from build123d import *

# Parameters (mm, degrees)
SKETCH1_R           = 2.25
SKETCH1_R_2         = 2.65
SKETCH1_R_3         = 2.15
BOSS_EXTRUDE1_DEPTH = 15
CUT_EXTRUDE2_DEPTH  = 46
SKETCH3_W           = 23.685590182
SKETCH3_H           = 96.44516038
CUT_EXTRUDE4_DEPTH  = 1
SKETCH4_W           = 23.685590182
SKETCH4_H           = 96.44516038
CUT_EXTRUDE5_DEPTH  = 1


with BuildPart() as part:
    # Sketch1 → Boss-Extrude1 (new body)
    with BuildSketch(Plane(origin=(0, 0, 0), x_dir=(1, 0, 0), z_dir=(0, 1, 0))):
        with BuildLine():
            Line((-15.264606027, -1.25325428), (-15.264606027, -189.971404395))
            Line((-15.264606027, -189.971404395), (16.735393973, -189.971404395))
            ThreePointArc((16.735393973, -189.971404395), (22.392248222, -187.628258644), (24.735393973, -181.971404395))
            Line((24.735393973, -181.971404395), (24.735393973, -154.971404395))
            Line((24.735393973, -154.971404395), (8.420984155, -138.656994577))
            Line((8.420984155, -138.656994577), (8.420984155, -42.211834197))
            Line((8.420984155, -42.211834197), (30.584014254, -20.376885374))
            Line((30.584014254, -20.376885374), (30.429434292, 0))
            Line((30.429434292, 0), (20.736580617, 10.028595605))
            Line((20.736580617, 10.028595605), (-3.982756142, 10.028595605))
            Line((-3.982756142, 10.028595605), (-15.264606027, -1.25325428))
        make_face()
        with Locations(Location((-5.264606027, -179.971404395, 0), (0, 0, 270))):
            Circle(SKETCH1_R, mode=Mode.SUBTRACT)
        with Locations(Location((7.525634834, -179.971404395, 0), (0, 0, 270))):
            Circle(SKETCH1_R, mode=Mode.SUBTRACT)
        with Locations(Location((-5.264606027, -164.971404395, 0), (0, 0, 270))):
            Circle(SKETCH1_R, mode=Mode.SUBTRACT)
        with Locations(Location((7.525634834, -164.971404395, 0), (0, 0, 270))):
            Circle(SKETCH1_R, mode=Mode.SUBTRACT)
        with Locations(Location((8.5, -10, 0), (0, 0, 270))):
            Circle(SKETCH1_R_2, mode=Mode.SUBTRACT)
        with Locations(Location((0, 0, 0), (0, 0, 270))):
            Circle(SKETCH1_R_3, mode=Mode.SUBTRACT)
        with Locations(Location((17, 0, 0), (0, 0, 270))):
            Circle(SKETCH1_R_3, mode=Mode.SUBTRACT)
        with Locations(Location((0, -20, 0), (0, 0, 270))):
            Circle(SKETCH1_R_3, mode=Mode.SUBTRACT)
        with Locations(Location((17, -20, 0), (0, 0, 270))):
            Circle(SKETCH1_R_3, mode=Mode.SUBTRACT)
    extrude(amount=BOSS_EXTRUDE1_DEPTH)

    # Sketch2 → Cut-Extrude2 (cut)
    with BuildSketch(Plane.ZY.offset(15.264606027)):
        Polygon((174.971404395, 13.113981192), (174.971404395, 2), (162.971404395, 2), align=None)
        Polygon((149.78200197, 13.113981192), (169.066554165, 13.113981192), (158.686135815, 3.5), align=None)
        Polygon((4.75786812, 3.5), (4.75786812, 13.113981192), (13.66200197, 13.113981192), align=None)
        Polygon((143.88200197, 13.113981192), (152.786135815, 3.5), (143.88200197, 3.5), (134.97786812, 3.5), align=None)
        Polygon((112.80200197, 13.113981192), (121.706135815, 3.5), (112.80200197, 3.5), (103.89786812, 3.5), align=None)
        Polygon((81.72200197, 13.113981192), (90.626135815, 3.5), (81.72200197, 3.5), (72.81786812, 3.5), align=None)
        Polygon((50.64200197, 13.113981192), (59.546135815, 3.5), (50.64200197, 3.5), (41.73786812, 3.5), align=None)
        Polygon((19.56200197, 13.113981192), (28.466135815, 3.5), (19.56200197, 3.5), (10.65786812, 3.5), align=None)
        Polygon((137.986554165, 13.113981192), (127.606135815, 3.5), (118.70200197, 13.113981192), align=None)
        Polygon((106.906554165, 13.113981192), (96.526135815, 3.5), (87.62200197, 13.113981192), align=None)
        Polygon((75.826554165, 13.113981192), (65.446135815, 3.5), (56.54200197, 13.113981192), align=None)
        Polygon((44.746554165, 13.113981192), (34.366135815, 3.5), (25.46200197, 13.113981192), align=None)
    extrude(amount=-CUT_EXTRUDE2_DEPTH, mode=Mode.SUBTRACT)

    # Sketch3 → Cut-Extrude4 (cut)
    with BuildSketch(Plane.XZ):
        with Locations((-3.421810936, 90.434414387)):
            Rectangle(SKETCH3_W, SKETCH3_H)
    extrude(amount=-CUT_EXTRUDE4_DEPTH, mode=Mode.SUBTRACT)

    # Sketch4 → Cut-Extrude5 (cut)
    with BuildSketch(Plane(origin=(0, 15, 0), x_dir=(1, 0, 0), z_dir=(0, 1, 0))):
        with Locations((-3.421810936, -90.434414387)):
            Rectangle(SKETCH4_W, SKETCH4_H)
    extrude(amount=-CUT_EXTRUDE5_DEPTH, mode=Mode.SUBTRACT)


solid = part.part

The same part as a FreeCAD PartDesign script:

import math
import FreeCAD as App
import Part
import Sketcher

V = App.Vector
Q = App.Units.Quantity


def add_polygon(sketch, points):
    """Adds a closed chain of lines whose ends are joined by coincident constraints."""
    first, n = sketch.GeometryCount, len(points)
    for a, b in zip(points, points[1:] + points[:1]):
        sketch.addGeometry(Part.LineSegment(App.Vector(*a, 0), App.Vector(*b, 0)), False)
    for i in range(n):
        sketch.addConstraint(Sketcher.Constraint("Coincident", first + i, 2, first + (i + 1) % n, 1))

doc = App.newDocument("Part")
body = doc.addObject("PartDesign::Body", "Body")

# Sketch on XZ plane
sketch1 = body.newObject("Sketcher::SketchObject", "Sketch")
sketch1.AttachmentSupport = (doc.getObject("XZ_Plane"), [""])
sketch1.MapMode = "FlatFace"
sketch1.addGeometry([
    Part.LineSegment(V(-15.264606, 1.253254, 0), V(-15.264606, 189.971404, 0)),  # 0
    Part.LineSegment(V(-15.264606, 189.971404, 0), V(16.735394, 189.971404, 0)),  # 1
    Part.ArcOfCircle(Part.Circle(V(16.735394, 181.971404, 0), V(0, 0, 1), 8), math.radians(0), math.radians(90)),  # 2
    Part.LineSegment(V(24.735394, 181.971404, 0), V(24.735394, 154.971404, 0)),  # 3
    Part.LineSegment(V(24.735394, 154.971404, 0), V(8.420984, 138.656995, 0)),  # 4
    Part.LineSegment(V(8.420984, 138.656995, 0), V(8.420984, 42.211834, 0)),  # 5
    Part.LineSegment(V(8.420984, 42.211834, 0), V(30.584014, 20.376885, 0)),  # 6
    Part.LineSegment(V(30.584014, 20.376885, 0), V(30.429434, 0, 0)),  # 7
    Part.LineSegment(V(30.429434, 0, 0), V(20.736581, -10.028596, 0)),  # 8
    Part.LineSegment(V(20.736581, -10.028596, 0), V(-3.982756, -10.028596, 0)),  # 9
    Part.LineSegment(V(-3.982756, -10.028596, 0), V(-15.264606, 1.253254, 0)),  # 10
    Part.Circle(V(-5.264606, 179.971404, 0), V(0, 0, 1), 2.25),  # 11
    Part.Circle(V(-5.264606, 164.971404, 0), V(0, 0, 1), 2.25),  # 12
    Part.Circle(V(7.525635, 179.971404, 0), V(0, 0, 1), 2.25),  # 13
    Part.Circle(V(7.525635, 164.971404, 0), V(0, 0, 1), 2.25),  # 14
    Part.Circle(V(0, 20, 0), V(0, 0, 1), 2.15),  # 15
    Part.Circle(V(0, 0, 0), V(0, 0, 1), 2.15),  # 16
    Part.Circle(V(8.5, 10, 0), V(0, 0, 1), 2.65),  # 17
    Part.Circle(V(17, 20, 0), V(0, 0, 1), 2.15),  # 18
    Part.Circle(V(17, 0, 0), V(0, 0, 1), 2.15),  # 19
], False)
sketch1.addConstraint([
    Sketcher.Constraint("Coincident", 0, 2, 1, 1),
    Sketcher.Constraint("Coincident", 1, 2, 2, 2),
    Sketcher.Constraint("Coincident", 2, 1, 3, 1),
    Sketcher.Constraint("Coincident", 3, 2, 4, 1),
    Sketcher.Constraint("Coincident", 4, 2, 5, 1),
    Sketcher.Constraint("Coincident", 5, 2, 6, 1),
    Sketcher.Constraint("Coincident", 6, 2, 7, 1),
    Sketcher.Constraint("Coincident", 7, 2, 8, 1),
    Sketcher.Constraint("Coincident", 8, 2, 9, 1),
    Sketcher.Constraint("Coincident", 9, 2, 10, 1),
    Sketcher.Constraint("Coincident", 10, 2, 0, 1),
    Sketcher.Constraint("Vertical", 0),
    Sketcher.Constraint("Horizontal", 1),
    Sketcher.Constraint("Vertical", 3),
    Sketcher.Constraint("Vertical", 5),
    Sketcher.Constraint("Horizontal", 9),
    Sketcher.Constraint("Coincident", 16, 3, -1, 1),
    Sketcher.Constraint("PointOnObject", 15, 3, -2),
    Sketcher.Constraint("PointOnObject", 19, 3, -1),
    Sketcher.Constraint("PointOnObject", 7, 2, -1),
    Sketcher.Constraint("Radius", 2, Q("8 mm")),
    Sketcher.Constraint("Diameter", 11, Q("4.5 mm")),
    Sketcher.Constraint("Diameter", 12, Q("4.5 mm")),
    Sketcher.Constraint("Diameter", 13, Q("4.5 mm")),
    Sketcher.Constraint("Diameter", 14, Q("4.5 mm")),
    Sketcher.Constraint("Diameter", 15, Q("4.3 mm")),
    Sketcher.Constraint("Diameter", 16, Q("4.3 mm")),
    Sketcher.Constraint("Diameter", 17, Q("5.3 mm")),
    Sketcher.Constraint("Diameter", 18, Q("4.3 mm")),
    Sketcher.Constraint("Diameter", 19, Q("4.3 mm")),
    Sketcher.Constraint("DistanceX", 1, 1, 1, 2, Q("32 mm")),
    Sketcher.Constraint("DistanceY", 3, 2, 3, 1, Q("27 mm")),
    Sketcher.Constraint("DistanceY", -1, 1, 15, 3, Q("20 mm")),
    Sketcher.Constraint("DistanceY", -1, 1, 17, 3, Q("10 mm")),
    Sketcher.Constraint("DistanceX", -1, 1, 18, 3, Q("17 mm")),
    Sketcher.Constraint("DistanceY", -1, 1, 18, 3, Q("20 mm")),
    Sketcher.Constraint("DistanceX", -1, 1, 19, 3, Q("17 mm")),
    Sketcher.Constraint("DistanceX", 11, 3, 2, 3, Q("22 mm")),
    Sketcher.Constraint("DistanceY", 11, 3, 2, 3, Q("2 mm")),
    Sketcher.Constraint("DistanceY", 12, 3, 11, 3, Q("15 mm")),
    Sketcher.Constraint("DistanceX", 12, 3, 2, 3, Q("22 mm")),
    Sketcher.Constraint("DistanceY", 13, 3, 2, 3, Q("2 mm")),
    Sketcher.Constraint("DistanceY", 14, 3, 13, 3, Q("15 mm")),
    Sketcher.Constraint("DistanceX", 0, 2, 11, 3, Q("10 mm")),
    Sketcher.Constraint("DistanceY", 2, 1, 1, 2, Q("8 mm")),
    Sketcher.Constraint("DistanceX", -1, 1, 17, 3, Q("8.5 mm")),
    Sketcher.Constraint("DistanceY", 0, 1, 0, 2, Q("188.71815 mm")),
    Sketcher.Constraint("DistanceY", 5, 2, 5, 1, Q("96.44516 mm")),
    Sketcher.Constraint("Distance", 4, Q("23.07206 mm")),
    Sketcher.Constraint("Distance", 7, Q("20.377472 mm")),
    Sketcher.Constraint("Distance", 8, Q("13.947191 mm")),
    Sketcher.Constraint("DistanceX", 9, 2, 9, 1, Q("24.719337 mm")),
    Sketcher.Constraint("DistanceX", -1, 1, 8, 2, Q("20.736581 mm")),
    Sketcher.Constraint("DistanceX", 13, 3, 2, 3, Q("9.209759 mm")),
    Sketcher.Constraint("DistanceX", 12, 3, 14, 3, Q("12.790241 mm")),
    Sketcher.Constraint("DistanceX", 4, 2, 3, 2, Q("16.31441 mm")),
    Sketcher.Constraint("DistanceX", 5, 2, 6, 2, Q("22.16303 mm")),
    Sketcher.Constraint("DistanceY", 6, 2, 5, 2, Q("21.834949 mm")),
    Sketcher.Constraint("DistanceX", 7, 2, 6, 2, Q("0.15458 mm")),
    Sketcher.Constraint("DistanceX", 10, 2, 9, 2, Q("11.28185 mm")),
])
pad1 = body.newObject("PartDesign::Pad", "Pad")
pad1.Profile = sketch1
pad1.Length = 15
pad1.Reversed = True

# Sketch on YZ plane
sketch2 = body.newObject("Sketcher::SketchObject", "Sketch001")
sketch2.AttachmentSupport = (doc.getObject("YZ_Plane"), [""])
sketch2.MapMode = "FlatFace"
sketch2.AttachmentOffset = App.Placement(V(0, 0, -15.264606), App.Rotation())
add_polygon(sketch2, [(2, 175), (13, 175), (2, 163)])  # lines 0-2
add_polygon(sketch2, [(13, 169), (13, 150), (4, 159)])  # lines 3-5
add_polygon(sketch2, [(13, 5), (4, 5), (13, 14)])  # lines 6-8
add_polygon(sketch2, [(4, 153), (13, 144), (4, 135)])  # lines 9-11
add_polygon(sketch2, [(4, 122), (13, 113), (4, 104)])  # lines 12-14
add_polygon(sketch2, [(4, 91), (13, 82), (4, 73)])  # lines 15-17
add_polygon(sketch2, [(4, 60), (13, 51), (4, 42)])  # lines 18-20
add_polygon(sketch2, [(4, 28), (13, 20), (4, 11)])  # lines 21-23
add_polygon(sketch2, [(4, 128), (13, 138), (13, 119)])  # lines 24-26
add_polygon(sketch2, [(4, 97), (13, 107), (13, 88)])  # lines 27-29
add_polygon(sketch2, [(4, 65), (13, 76), (13, 57)])  # lines 30-32
add_polygon(sketch2, [(4, 34), (13, 45), (13, 25)])  # lines 33-35
sketch2.addConstraint([
    Sketcher.Constraint("Horizontal", 0),
    Sketcher.Constraint("Vertical", 2),
    Sketcher.Constraint("Vertical", 3),
    Sketcher.Constraint("Horizontal", 6),
    Sketcher.Constraint("Vertical", 8),
    Sketcher.Constraint("Vertical", 11),
    Sketcher.Constraint("Vertical", 14),
    Sketcher.Constraint("Vertical", 17),
    Sketcher.Constraint("Vertical", 20),
    Sketcher.Constraint("Vertical", 23),
    Sketcher.Constraint("Vertical", 25),
    Sketcher.Constraint("Vertical", 28),
    Sketcher.Constraint("Vertical", 31),
    Sketcher.Constraint("Vertical", 34),
    Sketcher.Constraint("Perpendicular", 1, 4),
    Sketcher.Constraint("Perpendicular", 4, 5),
    Sketcher.Constraint("Perpendicular", 5, 9),
    Sketcher.Constraint("Parallel", 7, 10),
    Sketcher.Constraint("Parallel", 9, 12),
    Sketcher.Constraint("Parallel", 10, 13),
    Sketcher.Constraint("Parallel", 12, 15),
    Sketcher.Constraint("Parallel", 13, 16),
    Sketcher.Constraint("Parallel", 15, 18),
    Sketcher.Constraint("Parallel", 16, 19),
    Sketcher.Constraint("Parallel", 18, 21),
    Sketcher.Constraint("Parallel", 19, 22),
    Sketcher.Constraint("Perpendicular", 21, 24),
    Sketcher.Constraint("Perpendicular", 24, 26),
    Sketcher.Constraint("Perpendicular", 26, 27),
    Sketcher.Constraint("Perpendicular", 27, 29),
    Sketcher.Constraint("Perpendicular", 29, 30),
    Sketcher.Constraint("Perpendicular", 30, 32),
    Sketcher.Constraint("Perpendicular", 32, 33),
    Sketcher.Constraint("Perpendicular", 33, 35),
    Sketcher.Constraint("Vertical", 0, 2, 3, 2),
    Sketcher.Constraint("Vertical", 4, 2, 6, 2),
    Sketcher.Constraint("Vertical", 5, 2, 7, 2),
    Sketcher.Constraint("Vertical", 8, 2, 9, 2),
    Sketcher.Constraint("Vertical", 6, 2, 10, 2),
    Sketcher.Constraint("Vertical", 9, 2, 12, 2),
    Sketcher.Constraint("Vertical", 11, 2, 13, 2),
    Sketcher.Constraint("Vertical", 12, 2, 15, 2),
    Sketcher.Constraint("Vertical", 14, 2, 16, 2),
    Sketcher.Constraint("Vertical", 15, 2, 18, 2),
    Sketcher.Constraint("Vertical", 17, 2, 19, 2),
    Sketcher.Constraint("Vertical", 18, 2, 21, 2),
    Sketcher.Constraint("Vertical", 20, 2, 22, 2),
    Sketcher.Constraint("Vertical", 21, 2, 24, 2),
    Sketcher.Constraint("Vertical", 23, 2, 26, 2),
    Sketcher.Constraint("Vertical", 25, 2, 27, 2),
    Sketcher.Constraint("Vertical", 26, 2, 29, 2),
    Sketcher.Constraint("Vertical", 28, 2, 30, 2),
    Sketcher.Constraint("Vertical", 29, 2, 32, 2),
    Sketcher.Constraint("Vertical", 31, 2, 33, 2),
    Sketcher.Constraint("Vertical", 32, 2, 35, 2),
    Sketcher.Constraint("Equal", 4, 7),
    Sketcher.Constraint("DistanceY", 2, 1, 2, 2, Q("12 mm")),
    Sketcher.Constraint("DistanceX", -1, 1, 1, 2, Q("2 mm")),
    Sketcher.Constraint("DistanceX", -1, 1, 4, 2, Q("3.5 mm")),
    Sketcher.Constraint("DistanceY", 9, 2, 3, 2, Q("5.9 mm")),
    Sketcher.Constraint("DistanceY", 7, 2, 21, 2, Q("5.9 mm")),
    Sketcher.Constraint("DistanceY", 12, 2, 25, 2, Q("5.9 mm")),
    Sketcher.Constraint("DistanceY", 15, 2, 28, 2, Q("5.9 mm")),
    Sketcher.Constraint("DistanceY", 18, 2, 31, 2, Q("5.9 mm")),
    Sketcher.Constraint("DistanceY", 21, 2, 34, 2, Q("5.9 mm")),
    Sketcher.Constraint("DistanceY", 7, 2, 3, 2, Q("136.12 mm")),
    Sketcher.Constraint("DistanceY", 12, 2, 9, 2, Q("31.08 mm")),
    Sketcher.Constraint("DistanceY", 15, 2, 12, 2, Q("31.08 mm")),
    Sketcher.Constraint("DistanceY", 18, 2, 15, 2, Q("31.08 mm")),
    Sketcher.Constraint("DistanceY", -1, 1, 3, 2, Q("149.782002 mm")),
    Sketcher.Constraint("Distance", 4, Q("13.103901 mm")),
    Sketcher.Constraint("DistanceY", 4, 2, 1, 2, Q("4.285269 mm")),
])
pocket1 = body.newObject("PartDesign::Pocket", "Pocket")
pocket1.Profile = sketch2
pocket1.Length = 46
pocket1.Reversed = True

# Sketch on XZ plane
sketch3 = body.newObject("Sketcher::SketchObject", "Sketch002")
sketch3.AttachmentSupport = (doc.getObject("XZ_Plane"), [""])
sketch3.MapMode = "FlatFace"
add_polygon(sketch3, [(-15, 139), (-15, 42), (8, 42), (8, 139)])  # lines 0-3
sketch3.addConstraint([
    Sketcher.Constraint("Vertical", 0),
    Sketcher.Constraint("Horizontal", 1),
    Sketcher.Constraint("Vertical", 2),
    Sketcher.Constraint("Horizontal", 3),
    Sketcher.Constraint("DistanceX", 1, 1, 1, 2, Q("23.68559 mm")),
    Sketcher.Constraint("DistanceY", 0, 2, 0, 1, Q("96.44516 mm")),
    Sketcher.Constraint("DistanceX", 0, 2, -1, 1, Q("15.264606 mm")),
    Sketcher.Constraint("DistanceY", -1, 1, 0, 2, Q("42.211834 mm")),
])
pocket2 = body.newObject("PartDesign::Pocket", "Pocket001")
pocket2.Profile = sketch3
pocket2.Length = 1

# Sketch on XZ plane
sketch4 = body.newObject("Sketcher::SketchObject", "Sketch003")
sketch4.AttachmentSupport = (doc.getObject("XZ_Plane"), [""])
sketch4.MapMode = "FlatFace"
sketch4.AttachmentOffset = App.Placement(V(0, 0, -15), App.Rotation())
add_polygon(sketch4, [(-15, 42), (-15, 139), (8, 139), (8, 42)])  # lines 0-3
sketch4.addConstraint([
    Sketcher.Constraint("Vertical", 0),
    Sketcher.Constraint("Horizontal", 1),
    Sketcher.Constraint("Vertical", 2),
    Sketcher.Constraint("Horizontal", 3),
    Sketcher.Constraint("DistanceX", 1, 1, 1, 2, Q("23.68559 mm")),
    Sketcher.Constraint("DistanceY", 0, 1, 0, 2, Q("96.44516 mm")),
    Sketcher.Constraint("DistanceX", 0, 2, -1, 1, Q("15.264606 mm")),
    Sketcher.Constraint("DistanceY", -1, 1, 0, 2, Q("138.656995 mm")),
])
pocket3 = body.newObject("PartDesign::Pocket", "Pocket002")
pocket3.Profile = sketch4
pocket3.Length = 1
pocket3.Reversed = True

doc.recompute()
